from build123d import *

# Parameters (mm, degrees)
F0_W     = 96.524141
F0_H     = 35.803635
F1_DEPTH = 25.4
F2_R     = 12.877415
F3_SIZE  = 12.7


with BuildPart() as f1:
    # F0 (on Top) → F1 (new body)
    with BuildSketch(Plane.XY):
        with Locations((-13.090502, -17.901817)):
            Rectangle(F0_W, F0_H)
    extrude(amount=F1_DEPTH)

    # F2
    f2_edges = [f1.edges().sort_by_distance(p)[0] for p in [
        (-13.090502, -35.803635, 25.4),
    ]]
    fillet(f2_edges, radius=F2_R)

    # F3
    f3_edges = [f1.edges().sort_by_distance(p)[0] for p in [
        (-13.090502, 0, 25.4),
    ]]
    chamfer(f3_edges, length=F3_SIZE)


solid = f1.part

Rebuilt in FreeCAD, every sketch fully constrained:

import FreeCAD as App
import Part
import Sketcher
Q = App.Units.Quantity


def edges_at(feature, points):
    """Names of the edges that pass closest to the given points."""
    edges = feature.Shape.Edges
    near = lambda p: min(range(len(edges)), key=lambda i: edges[i].distToShape(Part.Vertex(*p))[0])
    return sorted({f"Edge{near(p) + 1}" for p in points})


def add_polygon(sketch, points):
    """Adds a closed chain of lines whose ends are joined by coincident constraints."""
    first, n = sketch.GeometryCount, len(points)
    for a, b in zip(points, points[1:] + points[:1]):
        sketch.addGeometry(Part.LineSegment(App.Vector(*a, 0), App.Vector(*b, 0)), False)
    for i in range(n):
        sketch.addConstraint(Sketcher.Constraint("Coincident", first + i, 2, first + (i + 1) % n, 1))

doc = App.newDocument("Part")
body = doc.addObject("PartDesign::Body", "Body")

sketch1 = body.newObject("Sketcher::SketchObject", "Sketch")
sketch1.AttachmentSupport = (doc.getObject("XY_Plane"), [""])
sketch1.MapMode = "FlatFace"
add_polygon(sketch1, [(-61, 0), (-61, -36), (35, -36), (35, 0)])
sketch1.addConstraint(Sketcher.Constraint("Vertical", 0))
sketch1.addConstraint(Sketcher.Constraint("Horizontal", 1))
sketch1.addConstraint(Sketcher.Constraint("Vertical", 2))
sketch1.addConstraint(Sketcher.Constraint("Horizontal", 3))
sketch1.addConstraint(Sketcher.Constraint("PointOnObject", 2, 2, -1))
sketch1.addConstraint(Sketcher.Constraint("DistanceX", 1, 1, 1, 2, 96.524141))
sketch1.addConstraint(Sketcher.Constraint("DistanceY", 0, 2, 0, 1, 35.803635))
sketch1.addConstraint(Sketcher.Constraint("DistanceX", -1, 1, 1, 2, 35.171568))
pad1 = body.newObject("PartDesign::Pad", "Pad")
pad1.Profile = sketch1
pad1.Length = Q("1 in")
doc.recompute()

fillet = body.newObject("PartDesign::Fillet", "Fillet")
fillet.Base = (pad1, edges_at(pad1, [(-13.091, -35.804, 25.4)]))
fillet.Radius = 12.877415
doc.recompute()

chamfer = body.newObject("PartDesign::Chamfer", "Chamfer")
chamfer.Base = (fillet, edges_at(fillet, [(-13.091, 0, 25.4)]))
chamfer.Size = Q("0.5 in")

doc.recompute()
